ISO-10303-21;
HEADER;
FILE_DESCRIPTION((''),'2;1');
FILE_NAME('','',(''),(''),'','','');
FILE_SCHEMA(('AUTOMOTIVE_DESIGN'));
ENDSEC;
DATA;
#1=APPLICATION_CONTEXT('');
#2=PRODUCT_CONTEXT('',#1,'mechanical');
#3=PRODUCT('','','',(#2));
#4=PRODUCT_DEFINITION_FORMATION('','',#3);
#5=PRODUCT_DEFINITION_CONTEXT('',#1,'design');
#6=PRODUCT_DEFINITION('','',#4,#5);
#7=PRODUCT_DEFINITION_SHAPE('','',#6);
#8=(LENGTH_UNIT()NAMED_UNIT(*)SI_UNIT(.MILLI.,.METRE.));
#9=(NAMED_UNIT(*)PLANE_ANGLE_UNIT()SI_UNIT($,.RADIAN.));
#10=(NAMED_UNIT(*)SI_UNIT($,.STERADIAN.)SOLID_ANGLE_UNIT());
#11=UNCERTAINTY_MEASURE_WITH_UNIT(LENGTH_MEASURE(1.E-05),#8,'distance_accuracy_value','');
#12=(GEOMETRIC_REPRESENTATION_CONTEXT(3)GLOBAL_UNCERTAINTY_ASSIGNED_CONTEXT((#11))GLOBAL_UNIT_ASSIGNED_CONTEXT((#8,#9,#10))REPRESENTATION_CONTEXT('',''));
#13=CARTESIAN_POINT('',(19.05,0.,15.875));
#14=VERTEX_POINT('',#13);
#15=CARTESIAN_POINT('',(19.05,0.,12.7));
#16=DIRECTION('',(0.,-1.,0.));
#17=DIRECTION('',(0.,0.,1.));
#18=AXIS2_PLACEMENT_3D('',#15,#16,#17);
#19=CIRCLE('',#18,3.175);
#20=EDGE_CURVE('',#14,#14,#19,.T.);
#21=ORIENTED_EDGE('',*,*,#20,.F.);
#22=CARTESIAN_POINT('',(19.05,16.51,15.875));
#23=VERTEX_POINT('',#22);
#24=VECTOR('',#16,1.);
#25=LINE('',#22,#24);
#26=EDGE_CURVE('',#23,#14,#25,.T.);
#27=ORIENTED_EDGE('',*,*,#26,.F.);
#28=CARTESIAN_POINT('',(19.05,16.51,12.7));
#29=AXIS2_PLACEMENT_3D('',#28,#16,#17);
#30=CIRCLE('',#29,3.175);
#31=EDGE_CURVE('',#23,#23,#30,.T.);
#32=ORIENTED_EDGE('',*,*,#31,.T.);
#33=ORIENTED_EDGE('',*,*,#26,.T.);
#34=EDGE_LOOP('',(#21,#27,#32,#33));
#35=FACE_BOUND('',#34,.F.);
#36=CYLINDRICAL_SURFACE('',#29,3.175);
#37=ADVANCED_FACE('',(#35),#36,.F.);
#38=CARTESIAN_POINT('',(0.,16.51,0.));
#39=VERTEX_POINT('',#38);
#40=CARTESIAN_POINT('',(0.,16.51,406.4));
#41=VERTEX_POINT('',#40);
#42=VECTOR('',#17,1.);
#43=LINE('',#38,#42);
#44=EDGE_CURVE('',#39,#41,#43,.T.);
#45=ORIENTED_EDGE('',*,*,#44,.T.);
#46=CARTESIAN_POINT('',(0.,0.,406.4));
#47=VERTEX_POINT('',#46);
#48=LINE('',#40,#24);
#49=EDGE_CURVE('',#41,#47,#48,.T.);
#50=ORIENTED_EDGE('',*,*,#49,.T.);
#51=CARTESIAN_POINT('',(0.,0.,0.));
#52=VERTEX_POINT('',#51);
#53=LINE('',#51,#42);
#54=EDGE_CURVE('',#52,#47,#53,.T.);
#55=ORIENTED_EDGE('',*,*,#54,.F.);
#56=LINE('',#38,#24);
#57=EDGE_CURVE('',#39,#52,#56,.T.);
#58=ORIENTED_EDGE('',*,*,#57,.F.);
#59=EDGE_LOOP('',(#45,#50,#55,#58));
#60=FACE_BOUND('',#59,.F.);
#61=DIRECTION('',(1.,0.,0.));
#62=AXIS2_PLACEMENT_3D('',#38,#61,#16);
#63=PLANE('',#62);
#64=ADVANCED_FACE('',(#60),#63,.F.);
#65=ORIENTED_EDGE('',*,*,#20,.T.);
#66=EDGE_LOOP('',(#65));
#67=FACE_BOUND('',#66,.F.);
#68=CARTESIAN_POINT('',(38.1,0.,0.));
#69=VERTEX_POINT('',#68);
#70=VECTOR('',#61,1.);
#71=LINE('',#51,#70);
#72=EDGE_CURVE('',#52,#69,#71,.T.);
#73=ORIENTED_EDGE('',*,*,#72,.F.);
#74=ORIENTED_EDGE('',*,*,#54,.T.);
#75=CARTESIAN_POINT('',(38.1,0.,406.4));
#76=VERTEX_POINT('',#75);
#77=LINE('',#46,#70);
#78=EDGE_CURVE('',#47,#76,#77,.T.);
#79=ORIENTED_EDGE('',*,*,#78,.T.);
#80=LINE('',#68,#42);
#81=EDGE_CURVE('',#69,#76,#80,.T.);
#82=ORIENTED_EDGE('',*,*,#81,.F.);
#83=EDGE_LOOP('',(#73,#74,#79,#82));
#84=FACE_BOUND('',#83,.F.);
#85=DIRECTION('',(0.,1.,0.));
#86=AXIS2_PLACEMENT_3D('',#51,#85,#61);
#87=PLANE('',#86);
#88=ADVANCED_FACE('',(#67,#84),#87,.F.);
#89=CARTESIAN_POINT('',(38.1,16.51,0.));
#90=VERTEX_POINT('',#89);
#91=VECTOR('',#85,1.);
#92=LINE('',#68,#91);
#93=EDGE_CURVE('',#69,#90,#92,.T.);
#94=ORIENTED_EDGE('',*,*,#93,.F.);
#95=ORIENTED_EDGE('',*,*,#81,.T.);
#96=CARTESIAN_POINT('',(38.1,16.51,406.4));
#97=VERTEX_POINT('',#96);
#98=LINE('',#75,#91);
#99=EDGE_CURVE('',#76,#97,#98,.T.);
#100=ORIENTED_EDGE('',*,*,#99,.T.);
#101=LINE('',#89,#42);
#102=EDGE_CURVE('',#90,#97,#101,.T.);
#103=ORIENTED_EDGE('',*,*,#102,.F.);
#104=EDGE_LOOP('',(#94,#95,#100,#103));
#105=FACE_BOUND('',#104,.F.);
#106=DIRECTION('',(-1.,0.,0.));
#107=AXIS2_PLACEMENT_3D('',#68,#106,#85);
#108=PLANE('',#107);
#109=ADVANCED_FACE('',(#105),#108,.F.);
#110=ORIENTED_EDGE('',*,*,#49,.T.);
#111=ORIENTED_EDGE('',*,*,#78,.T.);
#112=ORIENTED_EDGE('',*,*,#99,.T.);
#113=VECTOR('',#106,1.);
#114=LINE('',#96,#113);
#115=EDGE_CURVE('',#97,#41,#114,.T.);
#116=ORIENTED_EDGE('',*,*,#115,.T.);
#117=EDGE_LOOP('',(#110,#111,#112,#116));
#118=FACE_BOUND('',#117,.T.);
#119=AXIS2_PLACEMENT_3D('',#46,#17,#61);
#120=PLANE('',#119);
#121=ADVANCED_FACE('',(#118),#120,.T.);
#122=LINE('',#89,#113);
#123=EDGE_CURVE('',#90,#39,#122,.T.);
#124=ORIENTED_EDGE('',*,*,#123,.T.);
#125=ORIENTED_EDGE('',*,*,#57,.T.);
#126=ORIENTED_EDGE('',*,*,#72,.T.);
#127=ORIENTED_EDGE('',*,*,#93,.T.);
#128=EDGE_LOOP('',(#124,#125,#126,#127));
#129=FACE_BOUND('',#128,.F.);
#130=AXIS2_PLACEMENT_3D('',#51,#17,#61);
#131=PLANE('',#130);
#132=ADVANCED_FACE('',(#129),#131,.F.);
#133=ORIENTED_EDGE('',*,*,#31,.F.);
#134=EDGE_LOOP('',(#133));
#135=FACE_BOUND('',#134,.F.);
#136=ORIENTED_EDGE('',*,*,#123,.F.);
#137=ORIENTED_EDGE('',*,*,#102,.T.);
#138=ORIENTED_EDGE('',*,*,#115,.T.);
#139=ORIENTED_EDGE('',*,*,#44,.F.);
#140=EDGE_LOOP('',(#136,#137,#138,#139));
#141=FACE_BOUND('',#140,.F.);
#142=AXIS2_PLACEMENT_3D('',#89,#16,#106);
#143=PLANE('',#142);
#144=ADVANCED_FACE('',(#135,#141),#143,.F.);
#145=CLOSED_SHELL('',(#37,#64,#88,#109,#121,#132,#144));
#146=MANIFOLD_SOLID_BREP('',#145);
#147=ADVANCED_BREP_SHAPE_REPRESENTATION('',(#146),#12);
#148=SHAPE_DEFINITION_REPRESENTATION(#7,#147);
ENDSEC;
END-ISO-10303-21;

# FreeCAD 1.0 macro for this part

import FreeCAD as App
import Part
import Sketcher
Q = App.Units.Quantity

doc = App.newDocument("Part")
body = doc.addObject("PartDesign::Body", "Body")

# Sketch on XY plane
sketch1 = body.newObject("Sketcher::SketchObject", "Sketch")
sketch1.AttachmentSupport = (doc.getObject("XY_Plane"), [""])
sketch1.MapMode = "FlatFace"
sketch1.addGeometry(Part.LineSegment(App.Vector(0, 17, 0), App.Vector(0, 0, 0)), False)
sketch1.addGeometry(Part.LineSegment(App.Vector(0, 0, 0), App.Vector(38, 0, 0)), False)
sketch1.addGeometry(Part.LineSegment(App.Vector(38, 0, 0), App.Vector(38, 17, 0)), False)
sketch1.addGeometry(Part.LineSegment(App.Vector(38, 17, 0), App.Vector(0, 17, 0)), False)
sketch1.addConstraint(Sketcher.Constraint("Coincident", 0, 2, 1, 1))
sketch1.addConstraint(Sketcher.Constraint("Coincident", 1, 2, 2, 1))
sketch1.addConstraint(Sketcher.Constraint("Coincident", 2, 2, 3, 1))
sketch1.addConstraint(Sketcher.Constraint("Coincident", 3, 2, 0, 1))
sketch1.addConstraint(Sketcher.Constraint("Vertical", 0))
sketch1.addConstraint(Sketcher.Constraint("Horizontal", 1))
sketch1.addConstraint(Sketcher.Constraint("Vertical", 2))
sketch1.addConstraint(Sketcher.Constraint("Horizontal", 3))
sketch1.addConstraint(Sketcher.Constraint("Coincident", 0, 2, -1, 1))
sketch1.addConstraint(Sketcher.Constraint("DistanceX", 1, 1, 1, 2, Q("1.5 in")))
sketch1.addConstraint(Sketcher.Constraint("DistanceY", 0, 2, 0, 1, Q("0.65 in")))
pad1 = body.newObject("PartDesign::Pad", "Pad")
pad1.Profile = sketch1
pad1.Length = Q("16 in")

# Sketch on XZ plane
sketch2 = body.newObject("Sketcher::SketchObject", "Sketch001")
sketch2.AttachmentSupport = (doc.getObject("XZ_Plane"), [""])
sketch2.MapMode = "FlatFace"
sketch2.AttachmentOffset = App.Placement(App.Vector(0, 0, -0.65 * 25.4), App.Rotation())
sketch2.addGeometry(Part.Circle(App.Vector(19.1, 12.7, 0), App.Vector(0, 0, 1), 3.2), False)
sketch2.addConstraint(Sketcher.Constraint("Diameter", 0, Q("0.25 in")))
sketch2.addConstraint(Sketcher.Constraint("DistanceY", -1, 1, 0, 3, Q("0.5 in")))
sketch2.addConstraint(Sketcher.Constraint("DistanceX", -1, 1, 0, 3, Q("0.75 in")))
doc.recompute()
hole = body.newObject("PartDesign::Hole", "Hole")
hole.Profile = sketch2
hole.ThreadType = "None"
hole.Diameter = Q("0.25 in")
hole.DepthType = "ThroughAll"
hole.Reversed = True

doc.recompute()
